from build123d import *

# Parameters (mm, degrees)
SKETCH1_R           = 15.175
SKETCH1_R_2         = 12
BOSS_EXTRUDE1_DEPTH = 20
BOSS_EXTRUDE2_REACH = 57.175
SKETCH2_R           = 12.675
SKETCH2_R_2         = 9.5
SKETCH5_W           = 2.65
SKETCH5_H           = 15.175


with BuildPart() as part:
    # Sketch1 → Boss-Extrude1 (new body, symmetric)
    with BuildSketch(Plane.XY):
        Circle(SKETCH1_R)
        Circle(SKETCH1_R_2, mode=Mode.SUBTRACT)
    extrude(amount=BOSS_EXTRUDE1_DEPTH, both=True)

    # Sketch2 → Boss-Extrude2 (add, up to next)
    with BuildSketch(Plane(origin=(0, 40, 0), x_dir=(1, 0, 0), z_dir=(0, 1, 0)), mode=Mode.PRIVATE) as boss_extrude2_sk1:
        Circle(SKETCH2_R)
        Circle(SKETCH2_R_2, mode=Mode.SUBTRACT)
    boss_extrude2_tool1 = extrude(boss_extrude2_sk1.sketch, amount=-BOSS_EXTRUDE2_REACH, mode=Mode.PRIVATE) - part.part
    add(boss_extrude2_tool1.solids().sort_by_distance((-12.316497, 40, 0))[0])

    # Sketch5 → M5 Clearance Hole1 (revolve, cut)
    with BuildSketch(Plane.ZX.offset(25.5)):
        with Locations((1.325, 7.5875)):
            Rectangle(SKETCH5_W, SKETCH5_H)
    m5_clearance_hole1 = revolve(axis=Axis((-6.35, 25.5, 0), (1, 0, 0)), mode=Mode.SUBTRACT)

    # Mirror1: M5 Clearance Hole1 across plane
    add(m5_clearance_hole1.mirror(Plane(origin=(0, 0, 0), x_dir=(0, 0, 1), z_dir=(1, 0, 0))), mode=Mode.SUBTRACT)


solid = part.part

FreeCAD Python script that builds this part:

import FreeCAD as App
import Part
import Sketcher
from FreeCAD import Vector
Q = App.Units.Quantity

doc = App.newDocument("Part")
body = doc.addObject("PartDesign::Body", "Body")

sketch1 = doc.addObject("Sketcher::SketchObject", "Sketch")
body.addObject(sketch1)
sketch1.AttachmentSupport = (doc.XY_Plane, [""])
sketch1.MapMode = "FlatFace"
sketch1.addGeometry([
    Part.Circle(Vector(0, 0, 0), Vector(0, 0, 1), 15.175),
    Part.Circle(Vector(0, 0, 0), Vector(0, 0, 1), 12),
], False)
sketch1.addConstraint([
    Sketcher.Constraint("Coincident", 0, 3, -1, 1),
    Sketcher.Constraint("Coincident", 1, 3, -1, 1),
    Sketcher.Constraint("Diameter", 1, Q("24 mm")),
    Sketcher.Constraint("Diameter", 0, Q("30.35 mm")),
])
pad1 = doc.addObject("PartDesign::Pad", "Pad")
body.addObject(pad1)
pad1.Profile = sketch1
pad1.Length = 40
pad1.Midplane = True

sketch2 = doc.addObject("Sketcher::SketchObject", "Sketch001")
body.addObject(sketch2)
sketch2.AttachmentSupport = (doc.XZ_Plane, [""])
sketch2.MapMode = "FlatFace"
sketch2.AttachmentOffset = App.Placement(Vector(0, 0, -40), App.Rotation())
sketch2.addGeometry([
    Part.Circle(Vector(0, 0, 0), Vector(0, 0, 1), 12.675),
    Part.Circle(Vector(0, 0, 0), Vector(0, 0, 1), 9.5),
], False)
sketch2.addConstraint([
    Sketcher.Constraint("Coincident", 0, 3, -1, 1),
    Sketcher.Constraint("Coincident", 1, 3, -1, 1),
    Sketcher.Constraint("Diameter", 1, Q("19 mm")),
    Sketcher.Constraint("Diameter", 0, Q("25.35 mm")),
])
pad2 = doc.addObject("PartDesign::Pad", "Pad001")
body.addObject(pad2)
pad2.Profile = sketch2
pad2.Type = "UpToFirst"

sketch3 = doc.addObject("Sketcher::SketchObject", "Sketch002")
body.addObject(sketch3)
sketch3.AttachmentSupport = (doc.XZ_Plane, [""])
sketch3.MapMode = "FlatFace"
sketch3.AttachmentOffset = App.Placement(Vector(0, 0, -25.5), App.Rotation())
sketch3.addGeometry([
    Part.LineSegment(Vector(15.175, 0, 0), Vector(0, 0, 0)),
    Part.LineSegment(Vector(0, 0, 0), Vector(0, 2.65, 0)),
    Part.LineSegment(Vector(0, 2.65, 0), Vector(15.175, 2.65, 0)),
    Part.LineSegment(Vector(15.175, 2.65, 0), Vector(15.175, 0, 0)),
], False)
sketch3.addConstraint([
    Sketcher.Constraint("Coincident", 0, 2, 1, 1),
    Sketcher.Constraint("Coincident", 1, 2, 2, 1),
    Sketcher.Constraint("Coincident", 2, 2, 3, 1),
    Sketcher.Constraint("Coincident", 3, 2, 0, 1),
    Sketcher.Constraint("Horizontal", 0),
    Sketcher.Constraint("Vertical", 1),
    Sketcher.Constraint("Horizontal", 2),
    Sketcher.Constraint("Vertical", 3),
    Sketcher.Constraint("Coincident", 0, 2, -1, 1),
    Sketcher.Constraint("DistanceY", 1, 1, 1, 2, Q("2.65 mm")),
    Sketcher.Constraint("DistanceX", 0, 2, 0, 1, Q("15.175 mm")),
])
groove = doc.addObject("PartDesign::Groove", "Groove")
body.addObject(groove)
groove.Profile = sketch3
groove.ReferenceAxis = (sketch3, ["H_Axis"])
groove.Angle = 360
doc.recompute()

mirrored = doc.addObject("PartDesign::Mirrored", "Mirrored")
body.addObject(mirrored)
mirrored.Originals = [groove]
mirrored.MirrorPlane = (doc.YZ_Plane, [""])
body.Tip = mirrored

doc.recompute()
